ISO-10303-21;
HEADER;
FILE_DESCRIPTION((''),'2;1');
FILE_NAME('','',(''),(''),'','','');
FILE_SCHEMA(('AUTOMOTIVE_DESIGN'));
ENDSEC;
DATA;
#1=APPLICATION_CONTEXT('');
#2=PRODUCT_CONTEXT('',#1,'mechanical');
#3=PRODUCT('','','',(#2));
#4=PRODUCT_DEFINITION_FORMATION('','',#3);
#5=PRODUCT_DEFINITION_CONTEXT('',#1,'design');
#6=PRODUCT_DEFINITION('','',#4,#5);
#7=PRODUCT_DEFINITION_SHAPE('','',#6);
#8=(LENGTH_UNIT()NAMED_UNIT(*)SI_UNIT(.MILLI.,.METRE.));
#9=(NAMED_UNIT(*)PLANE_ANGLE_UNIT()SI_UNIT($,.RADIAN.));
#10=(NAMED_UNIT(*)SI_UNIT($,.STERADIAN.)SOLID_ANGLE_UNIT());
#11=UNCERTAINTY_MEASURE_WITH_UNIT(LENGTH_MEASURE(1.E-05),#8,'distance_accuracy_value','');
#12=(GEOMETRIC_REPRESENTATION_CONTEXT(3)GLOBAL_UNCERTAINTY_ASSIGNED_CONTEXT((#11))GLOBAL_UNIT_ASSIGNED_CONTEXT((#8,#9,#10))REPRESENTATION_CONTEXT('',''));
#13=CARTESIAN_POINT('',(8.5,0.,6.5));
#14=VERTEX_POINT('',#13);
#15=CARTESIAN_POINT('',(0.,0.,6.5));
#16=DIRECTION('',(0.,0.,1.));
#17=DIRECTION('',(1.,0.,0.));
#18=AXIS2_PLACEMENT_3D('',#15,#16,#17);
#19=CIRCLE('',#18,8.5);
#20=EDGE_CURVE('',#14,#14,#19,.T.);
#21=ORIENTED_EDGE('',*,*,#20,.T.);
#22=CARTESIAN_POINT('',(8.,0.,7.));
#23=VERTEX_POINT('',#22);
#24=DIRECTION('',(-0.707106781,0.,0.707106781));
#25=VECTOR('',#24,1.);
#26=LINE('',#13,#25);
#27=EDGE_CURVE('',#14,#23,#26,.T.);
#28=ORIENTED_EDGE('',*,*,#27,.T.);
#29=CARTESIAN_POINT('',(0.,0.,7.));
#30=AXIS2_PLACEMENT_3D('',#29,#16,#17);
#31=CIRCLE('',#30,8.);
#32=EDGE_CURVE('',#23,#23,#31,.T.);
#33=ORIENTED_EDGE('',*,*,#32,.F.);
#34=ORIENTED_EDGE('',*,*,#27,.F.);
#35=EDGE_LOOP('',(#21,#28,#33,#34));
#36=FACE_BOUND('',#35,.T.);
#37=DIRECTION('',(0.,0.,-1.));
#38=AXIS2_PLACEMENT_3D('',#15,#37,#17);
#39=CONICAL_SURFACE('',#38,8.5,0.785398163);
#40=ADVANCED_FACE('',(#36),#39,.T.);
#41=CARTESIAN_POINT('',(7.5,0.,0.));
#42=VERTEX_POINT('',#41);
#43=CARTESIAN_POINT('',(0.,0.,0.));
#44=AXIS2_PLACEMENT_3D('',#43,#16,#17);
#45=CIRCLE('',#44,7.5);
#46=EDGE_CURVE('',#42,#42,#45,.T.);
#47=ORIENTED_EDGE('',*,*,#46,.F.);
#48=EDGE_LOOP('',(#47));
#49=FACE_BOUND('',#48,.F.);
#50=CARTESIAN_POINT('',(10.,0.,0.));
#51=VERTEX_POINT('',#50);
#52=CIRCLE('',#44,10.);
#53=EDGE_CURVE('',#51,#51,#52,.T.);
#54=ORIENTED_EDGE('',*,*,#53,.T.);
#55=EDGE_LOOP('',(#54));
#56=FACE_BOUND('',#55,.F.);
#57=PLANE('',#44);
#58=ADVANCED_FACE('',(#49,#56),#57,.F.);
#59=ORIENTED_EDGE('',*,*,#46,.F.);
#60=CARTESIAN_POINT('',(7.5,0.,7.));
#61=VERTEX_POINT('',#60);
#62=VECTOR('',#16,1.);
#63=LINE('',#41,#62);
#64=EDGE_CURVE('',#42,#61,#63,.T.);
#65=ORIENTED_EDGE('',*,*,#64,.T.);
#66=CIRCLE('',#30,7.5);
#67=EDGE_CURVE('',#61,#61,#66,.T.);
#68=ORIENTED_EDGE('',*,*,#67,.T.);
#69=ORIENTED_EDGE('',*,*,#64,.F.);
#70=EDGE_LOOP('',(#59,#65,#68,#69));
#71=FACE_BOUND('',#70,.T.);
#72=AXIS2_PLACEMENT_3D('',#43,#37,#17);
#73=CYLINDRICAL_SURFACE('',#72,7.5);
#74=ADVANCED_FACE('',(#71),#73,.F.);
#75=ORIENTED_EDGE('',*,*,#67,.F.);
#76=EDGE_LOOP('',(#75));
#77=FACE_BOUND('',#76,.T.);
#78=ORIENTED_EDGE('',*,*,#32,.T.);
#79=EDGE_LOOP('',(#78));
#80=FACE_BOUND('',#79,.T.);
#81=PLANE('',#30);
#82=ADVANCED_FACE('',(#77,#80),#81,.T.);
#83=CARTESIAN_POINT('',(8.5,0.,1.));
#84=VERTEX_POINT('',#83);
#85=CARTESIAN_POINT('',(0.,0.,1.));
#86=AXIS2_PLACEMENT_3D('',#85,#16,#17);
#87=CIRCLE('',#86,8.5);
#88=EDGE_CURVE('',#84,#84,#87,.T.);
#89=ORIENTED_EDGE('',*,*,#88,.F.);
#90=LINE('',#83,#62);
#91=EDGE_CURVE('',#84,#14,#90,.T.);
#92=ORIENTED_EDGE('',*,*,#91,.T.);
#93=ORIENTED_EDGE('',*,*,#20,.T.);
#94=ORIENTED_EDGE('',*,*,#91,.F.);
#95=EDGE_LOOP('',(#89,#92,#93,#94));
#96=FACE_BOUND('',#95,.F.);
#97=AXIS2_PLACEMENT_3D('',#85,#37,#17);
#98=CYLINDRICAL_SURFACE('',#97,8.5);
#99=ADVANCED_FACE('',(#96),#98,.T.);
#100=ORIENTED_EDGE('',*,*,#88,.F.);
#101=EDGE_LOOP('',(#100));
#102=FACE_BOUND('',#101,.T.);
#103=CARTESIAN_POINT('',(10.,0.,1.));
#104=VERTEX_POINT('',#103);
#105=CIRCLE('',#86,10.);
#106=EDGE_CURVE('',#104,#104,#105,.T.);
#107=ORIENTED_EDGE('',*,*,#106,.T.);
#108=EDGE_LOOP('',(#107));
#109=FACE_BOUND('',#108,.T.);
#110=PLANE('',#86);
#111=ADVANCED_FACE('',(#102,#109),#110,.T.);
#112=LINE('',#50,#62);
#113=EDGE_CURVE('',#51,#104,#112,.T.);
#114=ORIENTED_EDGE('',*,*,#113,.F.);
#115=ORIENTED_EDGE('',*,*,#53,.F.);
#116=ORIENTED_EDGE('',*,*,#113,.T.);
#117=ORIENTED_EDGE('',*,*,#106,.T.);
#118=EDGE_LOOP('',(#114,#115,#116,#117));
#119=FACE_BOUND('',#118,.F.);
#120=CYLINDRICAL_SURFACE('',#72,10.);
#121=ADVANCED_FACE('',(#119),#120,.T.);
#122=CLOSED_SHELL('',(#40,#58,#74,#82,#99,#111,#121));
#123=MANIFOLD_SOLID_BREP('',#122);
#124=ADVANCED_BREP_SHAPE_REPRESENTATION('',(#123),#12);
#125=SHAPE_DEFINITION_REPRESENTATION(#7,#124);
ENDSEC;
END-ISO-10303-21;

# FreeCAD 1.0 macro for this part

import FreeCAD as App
import Part
import Sketcher

V = App.Vector


def edges_at(feature, points):
    """Names of the edges that pass closest to the given points."""
    edges = feature.Shape.Edges
    near = lambda p: min(range(len(edges)), key=lambda i: edges[i].distToShape(Part.Vertex(*p))[0])
    return sorted({f"Edge{near(p) + 1}" for p in points})

doc = App.newDocument("Part")
body = doc.addObject("PartDesign::Body", "Body")

# Sketch on XY plane
sketch1 = doc.addObject("Sketcher::SketchObject", "Sketch")
body.addObject(sketch1)
sketch1.AttachmentSupport = (doc.XY_Plane, [""])
sketch1.MapMode = "FlatFace"
sketch1.addGeometry([
    Part.Circle(V(0, 0, 0), V(0, 0, 1), 10),
    Part.Circle(V(0, 0, 0), V(0, 0, 1), 8),
], False)
sketch1.addConstraint([
    Sketcher.Constraint("Coincident", 0, 3, -1, 1),
    Sketcher.Constraint("Coincident", 1, 3, -1, 1),
    Sketcher.Constraint("Diameter", 0, 20.0),
    Sketcher.Constraint("Diameter", 1, 15.0),
])
pad1 = doc.addObject("PartDesign::Pad", "Pad")
body.addObject(pad1)
pad1.Profile = sketch1
pad1.Length = 1

# Sketch on XY plane
sketch2 = doc.addObject("Sketcher::SketchObject", "Sketch001")
body.addObject(sketch2)
sketch2.AttachmentSupport = (doc.XY_Plane, [""])
sketch2.MapMode = "FlatFace"
sketch2.AttachmentOffset = App.Placement(V(0, 0, 1), App.Rotation())
sketch2.addGeometry([
    Part.Circle(V(0, 0, 0), V(0, 0, 1), 8),
    Part.Circle(V(0, 0, 0), V(0, 0, 1), 8),
], False)
sketch2.addConstraint([
    Sketcher.Constraint("Coincident", 0, 3, -1, 1),
    Sketcher.Constraint("Coincident", 1, 3, -1, 1),
    Sketcher.Constraint("Diameter", 0, 17.0),
    Sketcher.Constraint("Diameter", 1, 15.0),
])
pad2 = doc.addObject("PartDesign::Pad", "Pad001")
body.addObject(pad2)
pad2.Profile = sketch2
pad2.Length = 6
doc.recompute()

chamfer = doc.addObject("PartDesign::Chamfer", "Chamfer")
body.addObject(chamfer)
chamfer.Base = (pad2, edges_at(pad2, [(-8.5, 0, 7)]))
chamfer.Size = 0.5

doc.recompute()
